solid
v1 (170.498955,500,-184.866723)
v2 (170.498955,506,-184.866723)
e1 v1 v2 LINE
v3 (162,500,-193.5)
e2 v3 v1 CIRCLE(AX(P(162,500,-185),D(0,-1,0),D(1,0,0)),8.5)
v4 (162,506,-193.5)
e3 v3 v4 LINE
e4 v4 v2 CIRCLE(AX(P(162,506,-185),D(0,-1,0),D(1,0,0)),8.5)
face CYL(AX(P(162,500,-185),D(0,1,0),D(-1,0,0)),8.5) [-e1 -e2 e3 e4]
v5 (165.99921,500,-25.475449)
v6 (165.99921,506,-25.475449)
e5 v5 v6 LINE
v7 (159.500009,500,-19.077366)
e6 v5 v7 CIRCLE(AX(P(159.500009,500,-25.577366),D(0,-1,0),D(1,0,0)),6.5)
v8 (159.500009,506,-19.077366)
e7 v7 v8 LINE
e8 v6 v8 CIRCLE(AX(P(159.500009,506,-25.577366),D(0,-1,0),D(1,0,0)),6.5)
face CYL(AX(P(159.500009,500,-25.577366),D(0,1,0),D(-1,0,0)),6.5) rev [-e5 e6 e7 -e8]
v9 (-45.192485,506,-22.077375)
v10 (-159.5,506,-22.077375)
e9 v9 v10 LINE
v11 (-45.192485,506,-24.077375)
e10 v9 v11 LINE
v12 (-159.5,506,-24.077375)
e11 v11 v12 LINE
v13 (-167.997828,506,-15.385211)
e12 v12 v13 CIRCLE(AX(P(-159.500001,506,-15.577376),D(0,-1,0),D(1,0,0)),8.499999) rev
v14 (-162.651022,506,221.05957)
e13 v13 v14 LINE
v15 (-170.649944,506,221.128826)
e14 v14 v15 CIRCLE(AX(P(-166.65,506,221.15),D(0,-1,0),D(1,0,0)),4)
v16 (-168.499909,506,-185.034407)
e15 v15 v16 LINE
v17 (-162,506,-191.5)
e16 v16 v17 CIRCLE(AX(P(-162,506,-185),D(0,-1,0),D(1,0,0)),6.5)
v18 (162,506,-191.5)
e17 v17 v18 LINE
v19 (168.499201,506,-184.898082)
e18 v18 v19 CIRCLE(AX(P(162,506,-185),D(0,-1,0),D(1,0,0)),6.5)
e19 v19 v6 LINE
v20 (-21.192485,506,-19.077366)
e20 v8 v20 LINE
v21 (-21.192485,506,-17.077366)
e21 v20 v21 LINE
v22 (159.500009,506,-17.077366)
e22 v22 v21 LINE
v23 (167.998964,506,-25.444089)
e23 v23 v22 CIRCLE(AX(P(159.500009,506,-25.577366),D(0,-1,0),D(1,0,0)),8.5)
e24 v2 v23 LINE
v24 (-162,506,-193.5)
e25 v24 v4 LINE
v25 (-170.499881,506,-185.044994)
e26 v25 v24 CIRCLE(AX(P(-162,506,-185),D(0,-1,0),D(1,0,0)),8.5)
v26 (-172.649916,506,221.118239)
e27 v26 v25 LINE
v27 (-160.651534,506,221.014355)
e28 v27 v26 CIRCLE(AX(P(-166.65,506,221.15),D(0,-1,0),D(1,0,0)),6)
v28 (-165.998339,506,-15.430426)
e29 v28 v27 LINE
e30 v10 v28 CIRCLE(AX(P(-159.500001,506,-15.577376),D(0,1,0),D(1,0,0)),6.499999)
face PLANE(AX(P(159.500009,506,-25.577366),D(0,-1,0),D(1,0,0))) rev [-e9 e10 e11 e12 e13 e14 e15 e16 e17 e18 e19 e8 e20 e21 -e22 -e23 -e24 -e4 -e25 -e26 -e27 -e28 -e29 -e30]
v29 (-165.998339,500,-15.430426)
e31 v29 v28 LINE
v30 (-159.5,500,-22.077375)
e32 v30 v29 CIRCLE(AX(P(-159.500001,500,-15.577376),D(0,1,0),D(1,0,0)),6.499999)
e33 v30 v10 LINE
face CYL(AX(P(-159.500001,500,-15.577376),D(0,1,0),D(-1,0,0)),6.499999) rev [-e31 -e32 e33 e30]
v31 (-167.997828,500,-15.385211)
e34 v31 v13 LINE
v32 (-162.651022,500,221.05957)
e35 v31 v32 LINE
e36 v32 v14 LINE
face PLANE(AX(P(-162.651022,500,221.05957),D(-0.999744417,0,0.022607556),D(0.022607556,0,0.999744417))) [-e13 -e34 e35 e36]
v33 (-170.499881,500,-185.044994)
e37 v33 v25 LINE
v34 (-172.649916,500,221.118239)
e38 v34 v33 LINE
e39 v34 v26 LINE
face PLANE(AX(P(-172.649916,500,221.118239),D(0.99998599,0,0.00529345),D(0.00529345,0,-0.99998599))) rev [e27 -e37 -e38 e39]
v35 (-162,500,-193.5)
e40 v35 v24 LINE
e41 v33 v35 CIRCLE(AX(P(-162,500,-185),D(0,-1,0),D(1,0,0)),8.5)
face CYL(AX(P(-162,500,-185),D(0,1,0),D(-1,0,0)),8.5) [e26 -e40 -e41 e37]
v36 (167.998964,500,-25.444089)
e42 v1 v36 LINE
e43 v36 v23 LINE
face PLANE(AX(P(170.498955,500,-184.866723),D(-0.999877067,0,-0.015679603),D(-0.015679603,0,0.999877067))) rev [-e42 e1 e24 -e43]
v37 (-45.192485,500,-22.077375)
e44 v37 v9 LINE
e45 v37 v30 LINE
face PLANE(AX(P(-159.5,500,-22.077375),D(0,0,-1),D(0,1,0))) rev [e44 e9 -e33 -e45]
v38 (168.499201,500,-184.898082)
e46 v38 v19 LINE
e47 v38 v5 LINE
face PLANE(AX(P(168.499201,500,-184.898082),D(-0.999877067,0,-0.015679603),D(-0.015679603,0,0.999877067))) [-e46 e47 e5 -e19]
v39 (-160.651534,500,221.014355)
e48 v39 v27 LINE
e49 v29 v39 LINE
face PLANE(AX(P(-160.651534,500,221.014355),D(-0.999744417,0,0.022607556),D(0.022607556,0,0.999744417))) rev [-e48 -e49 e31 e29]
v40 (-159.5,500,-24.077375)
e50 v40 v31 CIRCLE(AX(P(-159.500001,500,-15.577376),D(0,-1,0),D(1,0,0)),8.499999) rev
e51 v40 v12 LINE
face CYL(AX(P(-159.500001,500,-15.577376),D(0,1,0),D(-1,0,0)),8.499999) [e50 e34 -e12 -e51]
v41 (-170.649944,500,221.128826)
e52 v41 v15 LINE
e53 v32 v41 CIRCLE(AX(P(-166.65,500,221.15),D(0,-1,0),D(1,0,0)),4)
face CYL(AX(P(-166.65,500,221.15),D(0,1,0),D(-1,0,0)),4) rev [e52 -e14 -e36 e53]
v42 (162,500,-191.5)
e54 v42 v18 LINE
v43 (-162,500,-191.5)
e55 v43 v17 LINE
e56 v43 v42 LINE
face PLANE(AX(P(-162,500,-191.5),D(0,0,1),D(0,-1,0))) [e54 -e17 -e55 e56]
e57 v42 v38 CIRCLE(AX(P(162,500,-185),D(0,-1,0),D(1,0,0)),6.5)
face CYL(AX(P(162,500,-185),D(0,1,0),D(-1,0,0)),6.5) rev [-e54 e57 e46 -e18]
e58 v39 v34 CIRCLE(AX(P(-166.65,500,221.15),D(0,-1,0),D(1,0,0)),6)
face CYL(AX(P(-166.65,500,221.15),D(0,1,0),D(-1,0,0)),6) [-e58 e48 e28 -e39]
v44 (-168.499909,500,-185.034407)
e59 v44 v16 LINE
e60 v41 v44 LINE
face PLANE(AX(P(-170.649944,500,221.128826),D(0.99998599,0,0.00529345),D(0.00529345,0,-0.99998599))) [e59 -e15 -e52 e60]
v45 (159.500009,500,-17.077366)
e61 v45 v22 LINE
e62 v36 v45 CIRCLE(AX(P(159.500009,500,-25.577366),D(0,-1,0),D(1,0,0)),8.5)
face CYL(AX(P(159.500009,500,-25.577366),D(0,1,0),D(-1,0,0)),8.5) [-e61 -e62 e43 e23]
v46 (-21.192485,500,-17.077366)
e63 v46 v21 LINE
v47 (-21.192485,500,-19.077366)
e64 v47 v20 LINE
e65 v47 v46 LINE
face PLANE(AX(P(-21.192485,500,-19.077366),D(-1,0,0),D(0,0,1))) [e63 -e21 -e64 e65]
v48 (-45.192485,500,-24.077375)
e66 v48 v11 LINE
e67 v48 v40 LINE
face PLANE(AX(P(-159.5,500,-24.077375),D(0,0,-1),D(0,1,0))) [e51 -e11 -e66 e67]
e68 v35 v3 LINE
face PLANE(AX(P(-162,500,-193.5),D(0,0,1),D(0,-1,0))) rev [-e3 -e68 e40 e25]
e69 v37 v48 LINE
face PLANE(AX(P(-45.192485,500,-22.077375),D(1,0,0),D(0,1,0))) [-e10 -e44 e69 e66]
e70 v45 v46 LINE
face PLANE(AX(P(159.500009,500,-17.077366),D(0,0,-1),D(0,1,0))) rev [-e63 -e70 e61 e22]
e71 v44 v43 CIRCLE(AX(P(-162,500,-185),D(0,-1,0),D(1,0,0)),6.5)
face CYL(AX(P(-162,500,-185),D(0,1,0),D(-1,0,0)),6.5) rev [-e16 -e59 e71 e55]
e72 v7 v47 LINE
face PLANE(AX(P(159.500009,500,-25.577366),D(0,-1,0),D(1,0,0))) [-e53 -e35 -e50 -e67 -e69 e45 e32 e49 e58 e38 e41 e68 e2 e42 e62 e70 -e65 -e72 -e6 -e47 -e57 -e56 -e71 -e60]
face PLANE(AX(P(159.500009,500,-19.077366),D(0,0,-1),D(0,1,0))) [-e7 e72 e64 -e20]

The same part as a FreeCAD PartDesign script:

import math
import FreeCAD as App
import Part
import Sketcher
from FreeCAD import Vector
Q = App.Units.Quantity

doc = App.newDocument("Part")
params = doc.addObject("Spreadsheet::Sheet", "Params")
for row, (alias, value) in enumerate([
    ("sketch1_radius", "4 mm"),
    ("sketch1_radius2", "6 mm"),
    ("sketch1_radius3", "6.5 mm"),
    ("sketch1_width", "324 mm"),
    ("pad1_length", "6 mm"),
], start=1):
    params.set(f"A{row}", alias)
    params.set(f"B{row}", "=" + value)
    params.setAlias(f"B{row}", alias)

body = doc.addObject("PartDesign::Body", "Body")

# Sketch on XZ plane
sketch1 = body.newObject("Sketcher::SketchObject", "Sketch")
sketch1.AttachmentSupport = (doc.getObject("XZ_Plane"), [""])
sketch1.MapMode = "FlatFace"
sketch1.AttachmentOffset = App.Placement(Vector(0, 0, -506), App.Rotation())
sketch1.addGeometry([
    Part.LineSegment(Vector(159.5, -17.1, 0), Vector(-21.2, -17.1, 0)),  # 0
    Part.LineSegment(Vector(-21.2, -17.1, 0), Vector(-21.2, -19.1, 0)),  # 1
    Part.LineSegment(Vector(-21.2, -19.1, 0), Vector(159.5, -19.1, 0)),  # 2
    Part.ArcOfCircle(Part.Circle(Vector(159.5, -25.6, 0), Vector(0, 0, 1), 6.5), math.radians(1), math.radians(90)),  # 3
    Part.LineSegment(Vector(166, -25.5, 0), Vector(168.5, -184.9, 0)),  # 4
    Part.ArcOfCircle(Part.Circle(Vector(162, -185, 0), Vector(0, 0, 1), 6.5), math.radians(-90), math.radians(1)),  # 5
    Part.LineSegment(Vector(162, -191.5, 0), Vector(-162, -191.5, 0)),  # 6
    Part.ArcOfCircle(Part.Circle(Vector(-162, -185, 0), Vector(0, 0, 1), 6.5), math.radians(-180), math.radians(-90)),  # 7
    Part.LineSegment(Vector(-168.5, -185, 0), Vector(-170.6, 221.1, 0)),  # 8
    Part.ArcOfCircle(Part.Circle(Vector(-166.7, 221.2, 0), Vector(0, 0, 1), 4), math.radians(-1), math.radians(180)),  # 9
    Part.LineSegment(Vector(-162.7, 221.1, 0), Vector(-168, -15.4, 0)),  # 10
    Part.ArcOfCircle(Part.Circle(Vector(-159.5, -15.6, 0), Vector(0, 0, 1), 8.5), math.radians(179), math.radians(270)),  # 11
    Part.LineSegment(Vector(-159.5, -24.1, 0), Vector(-45.2, -24.1, 0)),  # 12
    Part.LineSegment(Vector(-45.2, -24.1, 0), Vector(-45.2, -22.1, 0)),  # 13
    Part.LineSegment(Vector(-45.2, -22.1, 0), Vector(-159.5, -22.1, 0)),  # 14
    Part.ArcOfCircle(Part.Circle(Vector(-159.5, -15.6, 0), Vector(0, 0, 1), 6.5), math.radians(179), math.radians(270)),  # 15
    Part.LineSegment(Vector(-166, -15.4, 0), Vector(-160.7, 221, 0)),  # 16
    Part.ArcOfCircle(Part.Circle(Vector(-166.7, 221.2, 0), Vector(0, 0, 1), 6), math.radians(-1), math.radians(180)),  # 17
    Part.LineSegment(Vector(-172.6, 221.1, 0), Vector(-170.5, -185, 0)),  # 18
    Part.ArcOfCircle(Part.Circle(Vector(-162, -185, 0), Vector(0, 0, 1), 8.5), math.radians(-180), math.radians(-90)),  # 19
    Part.LineSegment(Vector(-162, -193.5, 0), Vector(162, -193.5, 0)),  # 20
    Part.ArcOfCircle(Part.Circle(Vector(162, -185, 0), Vector(0, 0, 1), 8.5), math.radians(-90), math.radians(1)),  # 21
    Part.LineSegment(Vector(170.5, -184.9, 0), Vector(168, -25.4, 0)),  # 22
    Part.ArcOfCircle(Part.Circle(Vector(159.5, -25.6, 0), Vector(0, 0, 1), 8.5), math.radians(1), math.radians(90)),  # 23
], False)
sketch1.addConstraint([
    Sketcher.Constraint("Coincident", 0, 2, 1, 1),
    Sketcher.Constraint("Coincident", 1, 2, 2, 1),
    Sketcher.Constraint("Tangent", 2, 2, 3, 2),
    Sketcher.Constraint("Tangent", 3, 1, 4, 1),
    Sketcher.Constraint("Tangent", 4, 2, 5, 2),
    Sketcher.Constraint("Tangent", 5, 1, 6, 1),
    Sketcher.Constraint("Tangent", 6, 2, 7, 2),
    Sketcher.Constraint("Tangent", 7, 1, 8, 1),
    Sketcher.Constraint("Tangent", 8, 2, 9, 2),
    Sketcher.Constraint("Tangent", 9, 1, 10, 1),
    Sketcher.Constraint("Tangent", 10, 2, 11, 1),
    Sketcher.Constraint("Tangent", 11, 2, 12, 1),
    Sketcher.Constraint("Coincident", 12, 2, 13, 1),
    Sketcher.Constraint("Coincident", 13, 2, 14, 1),
    Sketcher.Constraint("Tangent", 14, 2, 15, 2),
    Sketcher.Constraint("Tangent", 15, 1, 16, 1),
    Sketcher.Constraint("Tangent", 16, 2, 17, 1),
    Sketcher.Constraint("Tangent", 17, 2, 18, 1),
    Sketcher.Constraint("Tangent", 18, 2, 19, 1),
    Sketcher.Constraint("Tangent", 19, 2, 20, 1),
    Sketcher.Constraint("Tangent", 20, 2, 21, 1),
    Sketcher.Constraint("Tangent", 21, 2, 22, 1),
    Sketcher.Constraint("Tangent", 22, 2, 23, 1),
    Sketcher.Constraint("Tangent", 23, 2, 0, 1),
    Sketcher.Constraint("Horizontal", 0),
    Sketcher.Constraint("Vertical", 1),
    Sketcher.Constraint("Horizontal", 2),
    Sketcher.Constraint("Horizontal", 6),
    Sketcher.Constraint("Horizontal", 12),
    Sketcher.Constraint("Vertical", 13),
    Sketcher.Constraint("Horizontal", 14),
    Sketcher.Constraint("Horizontal", 20),
    Sketcher.Constraint("Coincident", 15, 3, 11, 3),
    Sketcher.Constraint("Coincident", 17, 3, 9, 3),
    Sketcher.Constraint("Coincident", 19, 3, 7, 3),
    Sketcher.Constraint("Coincident", 21, 3, 5, 3),
    Sketcher.Constraint("Coincident", 23, 3, 3, 3),
    Sketcher.Constraint("Equal", 3, 5),
    Sketcher.Constraint("Equal", 5, 7),
    Sketcher.Constraint("Equal", 7, 15),
    Sketcher.Constraint("Equal", 11, 19),
    Sketcher.Constraint("Equal", 21, 23),
    Sketcher.Constraint("Parallel", 10, 16),
    Sketcher.Constraint("Radius", 9, Q("4 mm")),
    Sketcher.Constraint("Radius", 17, Q("6 mm")),
    Sketcher.Constraint("Radius", 3, Q("6.5 mm")),
    Sketcher.Constraint("DistanceX", 6, 2, 6, 1, Q("324 mm")),
    Sketcher.Constraint("DistanceX", -1, 1, 5, 3, Q("162 mm")),
    Sketcher.Constraint("DistanceY", 5, 3, -1, 1, Q("185 mm")),
    Sketcher.Constraint("DistanceX", 12, 2, 1, 2, Q("24 mm")),
    Sketcher.Constraint("DistanceX", 11, 3, -1, 1, Q("159.500001 mm")),
    Sketcher.Constraint("DistanceX", 9, 3, -1, 1, Q("166.65 mm")),
    Sketcher.Constraint("DistanceY", -1, 1, 9, 3, Q("221.15 mm")),
    Sketcher.Constraint("Distance", 4, Q("159.442232 mm")),
    Sketcher.Constraint("Distance", 10, Q("236.505228 mm")),
    Sketcher.Constraint("DistanceX", 0, 2, 0, 1, Q("180.692494 mm")),
    Sketcher.Constraint("DistanceX", 12, 1, 12, 2, Q("114.307513 mm")),
])
sketch1.setExpression("Constraints[43]", "Params.sketch1_radius")
sketch1.setExpression("Constraints[44]", "Params.sketch1_radius2")
sketch1.setExpression("Constraints[45]", "Params.sketch1_radius3")
sketch1.setExpression("Constraints[46]", "Params.sketch1_width")
pad1 = body.newObject("PartDesign::Pad", "Pad")
pad1.Profile = sketch1
pad1.setExpression("Length", "Params.pad1_length")

doc.recompute()
